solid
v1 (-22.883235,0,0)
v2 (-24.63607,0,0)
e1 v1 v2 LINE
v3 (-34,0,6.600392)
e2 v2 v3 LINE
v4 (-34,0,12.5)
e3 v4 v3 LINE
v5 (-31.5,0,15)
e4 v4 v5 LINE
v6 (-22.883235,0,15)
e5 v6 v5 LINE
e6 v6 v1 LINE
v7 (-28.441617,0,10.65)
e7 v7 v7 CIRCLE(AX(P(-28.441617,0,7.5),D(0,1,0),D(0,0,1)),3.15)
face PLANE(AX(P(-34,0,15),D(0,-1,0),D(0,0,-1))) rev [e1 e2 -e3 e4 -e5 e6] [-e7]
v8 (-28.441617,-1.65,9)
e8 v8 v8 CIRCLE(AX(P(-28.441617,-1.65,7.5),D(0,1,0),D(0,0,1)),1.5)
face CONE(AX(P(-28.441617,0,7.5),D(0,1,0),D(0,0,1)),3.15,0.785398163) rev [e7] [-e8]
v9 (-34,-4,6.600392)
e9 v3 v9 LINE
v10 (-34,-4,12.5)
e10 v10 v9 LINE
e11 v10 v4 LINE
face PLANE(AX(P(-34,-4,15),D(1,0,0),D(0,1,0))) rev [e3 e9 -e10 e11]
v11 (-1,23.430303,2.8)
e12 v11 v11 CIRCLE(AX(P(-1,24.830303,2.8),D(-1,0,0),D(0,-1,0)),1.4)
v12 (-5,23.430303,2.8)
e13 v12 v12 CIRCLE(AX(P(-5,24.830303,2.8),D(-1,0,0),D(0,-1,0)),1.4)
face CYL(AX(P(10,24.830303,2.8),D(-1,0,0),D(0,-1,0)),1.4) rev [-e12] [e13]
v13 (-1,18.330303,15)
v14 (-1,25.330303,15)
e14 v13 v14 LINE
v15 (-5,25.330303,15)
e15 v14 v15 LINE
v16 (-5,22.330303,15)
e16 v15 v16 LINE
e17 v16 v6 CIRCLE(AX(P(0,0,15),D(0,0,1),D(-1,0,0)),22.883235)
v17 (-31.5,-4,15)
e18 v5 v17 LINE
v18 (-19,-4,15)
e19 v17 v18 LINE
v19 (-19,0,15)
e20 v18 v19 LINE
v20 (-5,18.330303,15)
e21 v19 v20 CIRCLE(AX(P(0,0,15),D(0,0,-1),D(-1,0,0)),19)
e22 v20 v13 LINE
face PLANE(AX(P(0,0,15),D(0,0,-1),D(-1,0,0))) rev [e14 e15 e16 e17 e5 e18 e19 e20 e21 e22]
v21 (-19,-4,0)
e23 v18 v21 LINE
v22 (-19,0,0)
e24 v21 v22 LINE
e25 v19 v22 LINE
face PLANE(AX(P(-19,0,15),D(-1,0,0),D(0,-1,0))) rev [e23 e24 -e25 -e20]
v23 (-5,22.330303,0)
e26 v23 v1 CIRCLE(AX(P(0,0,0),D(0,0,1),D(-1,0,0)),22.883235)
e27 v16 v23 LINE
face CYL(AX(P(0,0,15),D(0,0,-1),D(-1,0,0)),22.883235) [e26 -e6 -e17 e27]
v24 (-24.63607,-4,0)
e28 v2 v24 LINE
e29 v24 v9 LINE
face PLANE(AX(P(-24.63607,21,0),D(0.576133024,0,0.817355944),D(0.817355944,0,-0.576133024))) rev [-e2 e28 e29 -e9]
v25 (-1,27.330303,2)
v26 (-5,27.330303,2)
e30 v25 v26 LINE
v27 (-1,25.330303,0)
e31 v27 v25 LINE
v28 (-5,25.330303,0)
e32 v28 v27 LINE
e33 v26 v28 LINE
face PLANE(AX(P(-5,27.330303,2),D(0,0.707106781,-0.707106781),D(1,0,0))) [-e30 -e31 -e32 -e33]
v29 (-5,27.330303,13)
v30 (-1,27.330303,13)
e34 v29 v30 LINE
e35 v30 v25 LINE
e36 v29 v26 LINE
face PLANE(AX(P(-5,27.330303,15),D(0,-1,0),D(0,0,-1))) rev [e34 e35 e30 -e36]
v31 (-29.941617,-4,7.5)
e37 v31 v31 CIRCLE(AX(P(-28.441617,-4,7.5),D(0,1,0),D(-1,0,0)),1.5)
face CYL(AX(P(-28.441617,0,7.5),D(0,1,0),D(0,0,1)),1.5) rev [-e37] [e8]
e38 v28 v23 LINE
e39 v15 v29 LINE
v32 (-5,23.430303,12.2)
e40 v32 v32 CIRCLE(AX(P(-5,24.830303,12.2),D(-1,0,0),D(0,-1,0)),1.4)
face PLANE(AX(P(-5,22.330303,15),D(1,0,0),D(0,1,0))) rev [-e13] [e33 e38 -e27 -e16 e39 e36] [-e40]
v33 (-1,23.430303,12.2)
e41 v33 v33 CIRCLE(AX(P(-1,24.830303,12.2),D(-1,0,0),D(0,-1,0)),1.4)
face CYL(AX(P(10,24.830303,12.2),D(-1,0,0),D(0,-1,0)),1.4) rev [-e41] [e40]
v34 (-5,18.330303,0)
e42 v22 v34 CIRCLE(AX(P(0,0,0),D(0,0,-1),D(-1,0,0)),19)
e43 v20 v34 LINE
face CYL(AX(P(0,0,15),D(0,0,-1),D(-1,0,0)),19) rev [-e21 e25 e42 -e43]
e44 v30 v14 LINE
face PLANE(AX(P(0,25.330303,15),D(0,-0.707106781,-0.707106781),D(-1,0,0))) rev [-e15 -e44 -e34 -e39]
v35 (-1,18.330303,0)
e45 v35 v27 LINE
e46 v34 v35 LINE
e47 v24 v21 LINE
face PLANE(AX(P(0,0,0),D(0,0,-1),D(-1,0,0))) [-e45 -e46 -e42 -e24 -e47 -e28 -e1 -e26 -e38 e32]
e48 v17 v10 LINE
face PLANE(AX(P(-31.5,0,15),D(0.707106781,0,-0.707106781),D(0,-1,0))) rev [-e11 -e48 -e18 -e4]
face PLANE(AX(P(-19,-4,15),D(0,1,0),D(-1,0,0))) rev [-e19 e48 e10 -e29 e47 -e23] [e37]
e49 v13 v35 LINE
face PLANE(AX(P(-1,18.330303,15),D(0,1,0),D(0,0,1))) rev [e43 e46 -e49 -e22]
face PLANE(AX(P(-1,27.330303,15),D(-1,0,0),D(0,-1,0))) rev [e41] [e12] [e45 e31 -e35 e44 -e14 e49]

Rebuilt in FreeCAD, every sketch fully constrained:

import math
import FreeCAD as App
import Part
import Sketcher

V = App.Vector
Q = App.Units.Quantity


def edges_at(feature, points):
    """Names of the edges that pass closest to the given points."""
    edges = feature.Shape.Edges
    near = lambda p: min(range(len(edges)), key=lambda i: edges[i].distToShape(Part.Vertex(*p))[0])
    return sorted({f"Edge{near(p) + 1}" for p in points})


def add_polygon(sketch, points):
    """Adds a closed chain of lines whose ends are joined by coincident constraints."""
    first, n = sketch.GeometryCount, len(points)
    for a, b in zip(points, points[1:] + points[:1]):
        sketch.addGeometry(Part.LineSegment(App.Vector(*a, 0), App.Vector(*b, 0)), False)
    for i in range(n):
        sketch.addConstraint(Sketcher.Constraint("Coincident", first + i, 2, first + (i + 1) % n, 1))

doc = App.newDocument("Part")
body = doc.addObject("PartDesign::Body", "Body")

# Sketch on XY plane
sketch1 = body.newObject("Sketcher::SketchObject", "Sketch")
sketch1.AttachmentSupport = (doc.getObject("XY_Plane"), [""])
sketch1.MapMode = "FlatFace"
sketch1.addGeometry([
    Part.LineSegment(V(-19, -4, 0), V(-19, 0, 0)),  # 0
    Part.ArcOfCircle(Part.Circle(V(0, 0, 0), V(0, 0, 1), 19), math.radians(105), math.radians(180)),  # 1
    Part.LineSegment(V(-5, 18.3, 0), V(-1, 18.3, 0)),  # 2
    Part.LineSegment(V(-1, 18.3, 0), V(-1, 27.3, 0)),  # 3
    Part.LineSegment(V(-1, 27.3, 0), V(-5, 27.3, 0)),  # 4
    Part.LineSegment(V(-5, 27.3, 0), V(-5, 22.3, 0)),  # 5
    Part.ArcOfCircle(Part.Circle(V(0, 0, 0), V(0, 0, 1), 22.9), math.radians(103), math.radians(180)),  # 6
    Part.LineSegment(V(-22.9, 0, 0), V(-34, 0, 0)),  # 7
    Part.LineSegment(V(-34, 0, 0), V(-34, -4, 0)),  # 8
    Part.LineSegment(V(-34, -4, 0), V(-19, -4, 0)),  # 9
], False)
sketch1.addConstraint([
    Sketcher.Constraint("Tangent", 0, 2, 1, 2),
    Sketcher.Constraint("Coincident", 1, 1, 2, 1),
    Sketcher.Constraint("Coincident", 2, 2, 3, 1),
    Sketcher.Constraint("Coincident", 3, 2, 4, 1),
    Sketcher.Constraint("Coincident", 4, 2, 5, 1),
    Sketcher.Constraint("Coincident", 5, 2, 6, 1),
    Sketcher.Constraint("Coincident", 6, 2, 7, 1),
    Sketcher.Constraint("Coincident", 7, 2, 8, 1),
    Sketcher.Constraint("Coincident", 8, 2, 9, 1),
    Sketcher.Constraint("Coincident", 9, 2, 0, 1),
    Sketcher.Constraint("Vertical", 0),
    Sketcher.Constraint("Horizontal", 2),
    Sketcher.Constraint("Vertical", 3),
    Sketcher.Constraint("Horizontal", 4),
    Sketcher.Constraint("Vertical", 5),
    Sketcher.Constraint("Horizontal", 7),
    Sketcher.Constraint("Vertical", 8),
    Sketcher.Constraint("Horizontal", 9),
    Sketcher.Constraint("Coincident", 1, 3, -1, 1),
    Sketcher.Constraint("Coincident", 6, 3, -1, 1),
    Sketcher.Constraint("PointOnObject", 6, 2, -1),
    Sketcher.Constraint("Vertical", 1, 1, 4, 2),
    Sketcher.Constraint("Equal", 4, 0),
    Sketcher.Constraint("Radius", 1, 19.0),
    Sketcher.Constraint("DistanceX", 2, 1, 2, 2, 4.0),
    Sketcher.Constraint("DistanceX", 9, 1, 9, 2, 15.0),
    Sketcher.Constraint("DistanceY", 3, 1, 3, 2, 9.0),
    Sketcher.Constraint("DistanceY", 5, 2, 5, 1, 5.0),
    Sketcher.Constraint("DistanceX", 1, 1, -1, 1, 5.0),
])
pad1 = body.newObject("PartDesign::Pad", "Pad")
pad1.Profile = sketch1
pad1.Length = 15
doc.recompute()

chamfer = body.newObject("PartDesign::Chamfer", "Chamfer")
chamfer.Base = (pad1, edges_at(pad1, [(-34, -2, 0), (-34, -2, 15)]))
chamfer.Size = 2.5

# Sketch on YZ plane
sketch2 = body.newObject("Sketcher::SketchObject", "Sketch001")
sketch2.AttachmentSupport = (doc.getObject("YZ_Plane"), [""])
sketch2.MapMode = "FlatFace"
sketch2.AttachmentOffset = App.Placement(V(0, 0, -5), App.Rotation())
sketch2.addGeometry([
    Part.Circle(V(24.8, 2.8, 0), V(0, 0, 1), 1.4),
    Part.Circle(V(24.8, 12.2, 0), V(0, 0, 1), 1.4),
], False)
sketch2.addConstraint([
    Sketcher.Constraint("Equal", 0, 1),
    Sketcher.Constraint("Vertical", 0, 3, 1, 3),
    Sketcher.Constraint("Diameter", 0, 2.8),
    Sketcher.Constraint("DistanceY", -1, 1, 0, 3, 2.8),
    Sketcher.Constraint("DistanceY", -1, 1, 1, 3, 12.2),
    Sketcher.Constraint("DistanceX", -1, 1, 0, 3, 24.830303),
])
pocket1 = body.newObject("PartDesign::Pocket", "Pocket")
pocket1.Profile = sketch2
pocket1.Length = 15
pocket1.Reversed = True
doc.recompute()

chamfer2 = body.newObject("PartDesign::Chamfer", "Chamfer001")
chamfer2.Base = (pocket1, edges_at(pocket1, [(-3, 27.33, 0), (-3, 27.33, 15)]))
chamfer2.Size = 2

# Sketch on XZ plane
sketch3 = body.newObject("Sketcher::SketchObject", "Sketch002")
sketch3.AttachmentSupport = (doc.getObject("XZ_Plane"), [""])
sketch3.MapMode = "FlatFace"
sketch3.addGeometry(Part.Circle(V(-28.4, 7.5, 0), V(0, 0, 1), 1.4), False)
sketch3.addConstraint([
    Sketcher.Constraint("Diameter", 0, 2.8),
    Sketcher.Constraint("DistanceY", -1, 1, 0, 3, 7.5),
    Sketcher.Constraint("DistanceX", 0, 3, -1, 1, 28.441617),
])
pocket2 = body.newObject("PartDesign::Pocket", "Pocket001")
pocket2.Profile = sketch3
pocket2.Type = "ThroughAll"
pocket2.Reversed = True

# Sketch on XZ plane
sketch4 = body.newObject("Sketcher::SketchObject", "Sketch003")
sketch4.AttachmentSupport = (doc.getObject("XZ_Plane"), [""])
sketch4.MapMode = "FlatFace"
sketch4.AttachmentOffset = App.Placement(V(0, 0, 4), App.Rotation())
add_polygon(sketch4, [(-24.6, 0), (-34, 6.6), (-34, 2.5), (-31.5, 0)])  # lines 0-3
sketch4.addConstraint([
    Sketcher.Constraint("Vertical", 1),
    Sketcher.Constraint("Horizontal", 3),
    Sketcher.Constraint("PointOnObject", 2, 2, -1),
    Sketcher.Constraint("Angle", 2, Q("-45 deg")),
    Sketcher.Constraint("DistanceX", 0, 2, -1, 1, 34.0),
    Sketcher.Constraint("DistanceY", -1, 1, 1, 2, 2.5),
    Sketcher.Constraint("DistanceX", 3, 1, 3, 2, 6.86393),
    Sketcher.Constraint("DistanceY", 1, 2, 1, 1, 4.100392),
])
pocket3 = body.newObject("PartDesign::Pocket", "Pocket002")
pocket3.Profile = sketch4
pocket3.Length = 25

# Sketch on XZ plane
sketch5 = body.newObject("Sketcher::SketchObject", "Sketch004")
sketch5.AttachmentSupport = (doc.getObject("XZ_Plane"), [""])
sketch5.MapMode = "FlatFace"
sketch5.addGeometry(Part.Circle(V(-28.4, 7.5, 0), V(0, 0, 1), 1.5), False)
sketch5.addConstraint([
    Sketcher.Constraint("Diameter", 0, 3.0),
    Sketcher.Constraint("DistanceY", -1, 1, 0, 3, 7.5),
    Sketcher.Constraint("DistanceX", 0, 3, -1, 1, 28.441617),
])
doc.recompute()
hole = body.newObject("PartDesign::Hole", "Hole")
hole.Profile = sketch5
hole.ThreadType = "None"
hole.Diameter = 3
hole.DepthType = "Dimension"
hole.Depth = 31.098709
hole.DrillPoint = "Angled"
hole.DrillPointAngle = 118
hole.HoleCutType = "Countersink"
hole.HoleCutDiameter = 6.3
hole.HoleCutCountersinkAngle = 90
hole.Reversed = True

doc.recompute()
